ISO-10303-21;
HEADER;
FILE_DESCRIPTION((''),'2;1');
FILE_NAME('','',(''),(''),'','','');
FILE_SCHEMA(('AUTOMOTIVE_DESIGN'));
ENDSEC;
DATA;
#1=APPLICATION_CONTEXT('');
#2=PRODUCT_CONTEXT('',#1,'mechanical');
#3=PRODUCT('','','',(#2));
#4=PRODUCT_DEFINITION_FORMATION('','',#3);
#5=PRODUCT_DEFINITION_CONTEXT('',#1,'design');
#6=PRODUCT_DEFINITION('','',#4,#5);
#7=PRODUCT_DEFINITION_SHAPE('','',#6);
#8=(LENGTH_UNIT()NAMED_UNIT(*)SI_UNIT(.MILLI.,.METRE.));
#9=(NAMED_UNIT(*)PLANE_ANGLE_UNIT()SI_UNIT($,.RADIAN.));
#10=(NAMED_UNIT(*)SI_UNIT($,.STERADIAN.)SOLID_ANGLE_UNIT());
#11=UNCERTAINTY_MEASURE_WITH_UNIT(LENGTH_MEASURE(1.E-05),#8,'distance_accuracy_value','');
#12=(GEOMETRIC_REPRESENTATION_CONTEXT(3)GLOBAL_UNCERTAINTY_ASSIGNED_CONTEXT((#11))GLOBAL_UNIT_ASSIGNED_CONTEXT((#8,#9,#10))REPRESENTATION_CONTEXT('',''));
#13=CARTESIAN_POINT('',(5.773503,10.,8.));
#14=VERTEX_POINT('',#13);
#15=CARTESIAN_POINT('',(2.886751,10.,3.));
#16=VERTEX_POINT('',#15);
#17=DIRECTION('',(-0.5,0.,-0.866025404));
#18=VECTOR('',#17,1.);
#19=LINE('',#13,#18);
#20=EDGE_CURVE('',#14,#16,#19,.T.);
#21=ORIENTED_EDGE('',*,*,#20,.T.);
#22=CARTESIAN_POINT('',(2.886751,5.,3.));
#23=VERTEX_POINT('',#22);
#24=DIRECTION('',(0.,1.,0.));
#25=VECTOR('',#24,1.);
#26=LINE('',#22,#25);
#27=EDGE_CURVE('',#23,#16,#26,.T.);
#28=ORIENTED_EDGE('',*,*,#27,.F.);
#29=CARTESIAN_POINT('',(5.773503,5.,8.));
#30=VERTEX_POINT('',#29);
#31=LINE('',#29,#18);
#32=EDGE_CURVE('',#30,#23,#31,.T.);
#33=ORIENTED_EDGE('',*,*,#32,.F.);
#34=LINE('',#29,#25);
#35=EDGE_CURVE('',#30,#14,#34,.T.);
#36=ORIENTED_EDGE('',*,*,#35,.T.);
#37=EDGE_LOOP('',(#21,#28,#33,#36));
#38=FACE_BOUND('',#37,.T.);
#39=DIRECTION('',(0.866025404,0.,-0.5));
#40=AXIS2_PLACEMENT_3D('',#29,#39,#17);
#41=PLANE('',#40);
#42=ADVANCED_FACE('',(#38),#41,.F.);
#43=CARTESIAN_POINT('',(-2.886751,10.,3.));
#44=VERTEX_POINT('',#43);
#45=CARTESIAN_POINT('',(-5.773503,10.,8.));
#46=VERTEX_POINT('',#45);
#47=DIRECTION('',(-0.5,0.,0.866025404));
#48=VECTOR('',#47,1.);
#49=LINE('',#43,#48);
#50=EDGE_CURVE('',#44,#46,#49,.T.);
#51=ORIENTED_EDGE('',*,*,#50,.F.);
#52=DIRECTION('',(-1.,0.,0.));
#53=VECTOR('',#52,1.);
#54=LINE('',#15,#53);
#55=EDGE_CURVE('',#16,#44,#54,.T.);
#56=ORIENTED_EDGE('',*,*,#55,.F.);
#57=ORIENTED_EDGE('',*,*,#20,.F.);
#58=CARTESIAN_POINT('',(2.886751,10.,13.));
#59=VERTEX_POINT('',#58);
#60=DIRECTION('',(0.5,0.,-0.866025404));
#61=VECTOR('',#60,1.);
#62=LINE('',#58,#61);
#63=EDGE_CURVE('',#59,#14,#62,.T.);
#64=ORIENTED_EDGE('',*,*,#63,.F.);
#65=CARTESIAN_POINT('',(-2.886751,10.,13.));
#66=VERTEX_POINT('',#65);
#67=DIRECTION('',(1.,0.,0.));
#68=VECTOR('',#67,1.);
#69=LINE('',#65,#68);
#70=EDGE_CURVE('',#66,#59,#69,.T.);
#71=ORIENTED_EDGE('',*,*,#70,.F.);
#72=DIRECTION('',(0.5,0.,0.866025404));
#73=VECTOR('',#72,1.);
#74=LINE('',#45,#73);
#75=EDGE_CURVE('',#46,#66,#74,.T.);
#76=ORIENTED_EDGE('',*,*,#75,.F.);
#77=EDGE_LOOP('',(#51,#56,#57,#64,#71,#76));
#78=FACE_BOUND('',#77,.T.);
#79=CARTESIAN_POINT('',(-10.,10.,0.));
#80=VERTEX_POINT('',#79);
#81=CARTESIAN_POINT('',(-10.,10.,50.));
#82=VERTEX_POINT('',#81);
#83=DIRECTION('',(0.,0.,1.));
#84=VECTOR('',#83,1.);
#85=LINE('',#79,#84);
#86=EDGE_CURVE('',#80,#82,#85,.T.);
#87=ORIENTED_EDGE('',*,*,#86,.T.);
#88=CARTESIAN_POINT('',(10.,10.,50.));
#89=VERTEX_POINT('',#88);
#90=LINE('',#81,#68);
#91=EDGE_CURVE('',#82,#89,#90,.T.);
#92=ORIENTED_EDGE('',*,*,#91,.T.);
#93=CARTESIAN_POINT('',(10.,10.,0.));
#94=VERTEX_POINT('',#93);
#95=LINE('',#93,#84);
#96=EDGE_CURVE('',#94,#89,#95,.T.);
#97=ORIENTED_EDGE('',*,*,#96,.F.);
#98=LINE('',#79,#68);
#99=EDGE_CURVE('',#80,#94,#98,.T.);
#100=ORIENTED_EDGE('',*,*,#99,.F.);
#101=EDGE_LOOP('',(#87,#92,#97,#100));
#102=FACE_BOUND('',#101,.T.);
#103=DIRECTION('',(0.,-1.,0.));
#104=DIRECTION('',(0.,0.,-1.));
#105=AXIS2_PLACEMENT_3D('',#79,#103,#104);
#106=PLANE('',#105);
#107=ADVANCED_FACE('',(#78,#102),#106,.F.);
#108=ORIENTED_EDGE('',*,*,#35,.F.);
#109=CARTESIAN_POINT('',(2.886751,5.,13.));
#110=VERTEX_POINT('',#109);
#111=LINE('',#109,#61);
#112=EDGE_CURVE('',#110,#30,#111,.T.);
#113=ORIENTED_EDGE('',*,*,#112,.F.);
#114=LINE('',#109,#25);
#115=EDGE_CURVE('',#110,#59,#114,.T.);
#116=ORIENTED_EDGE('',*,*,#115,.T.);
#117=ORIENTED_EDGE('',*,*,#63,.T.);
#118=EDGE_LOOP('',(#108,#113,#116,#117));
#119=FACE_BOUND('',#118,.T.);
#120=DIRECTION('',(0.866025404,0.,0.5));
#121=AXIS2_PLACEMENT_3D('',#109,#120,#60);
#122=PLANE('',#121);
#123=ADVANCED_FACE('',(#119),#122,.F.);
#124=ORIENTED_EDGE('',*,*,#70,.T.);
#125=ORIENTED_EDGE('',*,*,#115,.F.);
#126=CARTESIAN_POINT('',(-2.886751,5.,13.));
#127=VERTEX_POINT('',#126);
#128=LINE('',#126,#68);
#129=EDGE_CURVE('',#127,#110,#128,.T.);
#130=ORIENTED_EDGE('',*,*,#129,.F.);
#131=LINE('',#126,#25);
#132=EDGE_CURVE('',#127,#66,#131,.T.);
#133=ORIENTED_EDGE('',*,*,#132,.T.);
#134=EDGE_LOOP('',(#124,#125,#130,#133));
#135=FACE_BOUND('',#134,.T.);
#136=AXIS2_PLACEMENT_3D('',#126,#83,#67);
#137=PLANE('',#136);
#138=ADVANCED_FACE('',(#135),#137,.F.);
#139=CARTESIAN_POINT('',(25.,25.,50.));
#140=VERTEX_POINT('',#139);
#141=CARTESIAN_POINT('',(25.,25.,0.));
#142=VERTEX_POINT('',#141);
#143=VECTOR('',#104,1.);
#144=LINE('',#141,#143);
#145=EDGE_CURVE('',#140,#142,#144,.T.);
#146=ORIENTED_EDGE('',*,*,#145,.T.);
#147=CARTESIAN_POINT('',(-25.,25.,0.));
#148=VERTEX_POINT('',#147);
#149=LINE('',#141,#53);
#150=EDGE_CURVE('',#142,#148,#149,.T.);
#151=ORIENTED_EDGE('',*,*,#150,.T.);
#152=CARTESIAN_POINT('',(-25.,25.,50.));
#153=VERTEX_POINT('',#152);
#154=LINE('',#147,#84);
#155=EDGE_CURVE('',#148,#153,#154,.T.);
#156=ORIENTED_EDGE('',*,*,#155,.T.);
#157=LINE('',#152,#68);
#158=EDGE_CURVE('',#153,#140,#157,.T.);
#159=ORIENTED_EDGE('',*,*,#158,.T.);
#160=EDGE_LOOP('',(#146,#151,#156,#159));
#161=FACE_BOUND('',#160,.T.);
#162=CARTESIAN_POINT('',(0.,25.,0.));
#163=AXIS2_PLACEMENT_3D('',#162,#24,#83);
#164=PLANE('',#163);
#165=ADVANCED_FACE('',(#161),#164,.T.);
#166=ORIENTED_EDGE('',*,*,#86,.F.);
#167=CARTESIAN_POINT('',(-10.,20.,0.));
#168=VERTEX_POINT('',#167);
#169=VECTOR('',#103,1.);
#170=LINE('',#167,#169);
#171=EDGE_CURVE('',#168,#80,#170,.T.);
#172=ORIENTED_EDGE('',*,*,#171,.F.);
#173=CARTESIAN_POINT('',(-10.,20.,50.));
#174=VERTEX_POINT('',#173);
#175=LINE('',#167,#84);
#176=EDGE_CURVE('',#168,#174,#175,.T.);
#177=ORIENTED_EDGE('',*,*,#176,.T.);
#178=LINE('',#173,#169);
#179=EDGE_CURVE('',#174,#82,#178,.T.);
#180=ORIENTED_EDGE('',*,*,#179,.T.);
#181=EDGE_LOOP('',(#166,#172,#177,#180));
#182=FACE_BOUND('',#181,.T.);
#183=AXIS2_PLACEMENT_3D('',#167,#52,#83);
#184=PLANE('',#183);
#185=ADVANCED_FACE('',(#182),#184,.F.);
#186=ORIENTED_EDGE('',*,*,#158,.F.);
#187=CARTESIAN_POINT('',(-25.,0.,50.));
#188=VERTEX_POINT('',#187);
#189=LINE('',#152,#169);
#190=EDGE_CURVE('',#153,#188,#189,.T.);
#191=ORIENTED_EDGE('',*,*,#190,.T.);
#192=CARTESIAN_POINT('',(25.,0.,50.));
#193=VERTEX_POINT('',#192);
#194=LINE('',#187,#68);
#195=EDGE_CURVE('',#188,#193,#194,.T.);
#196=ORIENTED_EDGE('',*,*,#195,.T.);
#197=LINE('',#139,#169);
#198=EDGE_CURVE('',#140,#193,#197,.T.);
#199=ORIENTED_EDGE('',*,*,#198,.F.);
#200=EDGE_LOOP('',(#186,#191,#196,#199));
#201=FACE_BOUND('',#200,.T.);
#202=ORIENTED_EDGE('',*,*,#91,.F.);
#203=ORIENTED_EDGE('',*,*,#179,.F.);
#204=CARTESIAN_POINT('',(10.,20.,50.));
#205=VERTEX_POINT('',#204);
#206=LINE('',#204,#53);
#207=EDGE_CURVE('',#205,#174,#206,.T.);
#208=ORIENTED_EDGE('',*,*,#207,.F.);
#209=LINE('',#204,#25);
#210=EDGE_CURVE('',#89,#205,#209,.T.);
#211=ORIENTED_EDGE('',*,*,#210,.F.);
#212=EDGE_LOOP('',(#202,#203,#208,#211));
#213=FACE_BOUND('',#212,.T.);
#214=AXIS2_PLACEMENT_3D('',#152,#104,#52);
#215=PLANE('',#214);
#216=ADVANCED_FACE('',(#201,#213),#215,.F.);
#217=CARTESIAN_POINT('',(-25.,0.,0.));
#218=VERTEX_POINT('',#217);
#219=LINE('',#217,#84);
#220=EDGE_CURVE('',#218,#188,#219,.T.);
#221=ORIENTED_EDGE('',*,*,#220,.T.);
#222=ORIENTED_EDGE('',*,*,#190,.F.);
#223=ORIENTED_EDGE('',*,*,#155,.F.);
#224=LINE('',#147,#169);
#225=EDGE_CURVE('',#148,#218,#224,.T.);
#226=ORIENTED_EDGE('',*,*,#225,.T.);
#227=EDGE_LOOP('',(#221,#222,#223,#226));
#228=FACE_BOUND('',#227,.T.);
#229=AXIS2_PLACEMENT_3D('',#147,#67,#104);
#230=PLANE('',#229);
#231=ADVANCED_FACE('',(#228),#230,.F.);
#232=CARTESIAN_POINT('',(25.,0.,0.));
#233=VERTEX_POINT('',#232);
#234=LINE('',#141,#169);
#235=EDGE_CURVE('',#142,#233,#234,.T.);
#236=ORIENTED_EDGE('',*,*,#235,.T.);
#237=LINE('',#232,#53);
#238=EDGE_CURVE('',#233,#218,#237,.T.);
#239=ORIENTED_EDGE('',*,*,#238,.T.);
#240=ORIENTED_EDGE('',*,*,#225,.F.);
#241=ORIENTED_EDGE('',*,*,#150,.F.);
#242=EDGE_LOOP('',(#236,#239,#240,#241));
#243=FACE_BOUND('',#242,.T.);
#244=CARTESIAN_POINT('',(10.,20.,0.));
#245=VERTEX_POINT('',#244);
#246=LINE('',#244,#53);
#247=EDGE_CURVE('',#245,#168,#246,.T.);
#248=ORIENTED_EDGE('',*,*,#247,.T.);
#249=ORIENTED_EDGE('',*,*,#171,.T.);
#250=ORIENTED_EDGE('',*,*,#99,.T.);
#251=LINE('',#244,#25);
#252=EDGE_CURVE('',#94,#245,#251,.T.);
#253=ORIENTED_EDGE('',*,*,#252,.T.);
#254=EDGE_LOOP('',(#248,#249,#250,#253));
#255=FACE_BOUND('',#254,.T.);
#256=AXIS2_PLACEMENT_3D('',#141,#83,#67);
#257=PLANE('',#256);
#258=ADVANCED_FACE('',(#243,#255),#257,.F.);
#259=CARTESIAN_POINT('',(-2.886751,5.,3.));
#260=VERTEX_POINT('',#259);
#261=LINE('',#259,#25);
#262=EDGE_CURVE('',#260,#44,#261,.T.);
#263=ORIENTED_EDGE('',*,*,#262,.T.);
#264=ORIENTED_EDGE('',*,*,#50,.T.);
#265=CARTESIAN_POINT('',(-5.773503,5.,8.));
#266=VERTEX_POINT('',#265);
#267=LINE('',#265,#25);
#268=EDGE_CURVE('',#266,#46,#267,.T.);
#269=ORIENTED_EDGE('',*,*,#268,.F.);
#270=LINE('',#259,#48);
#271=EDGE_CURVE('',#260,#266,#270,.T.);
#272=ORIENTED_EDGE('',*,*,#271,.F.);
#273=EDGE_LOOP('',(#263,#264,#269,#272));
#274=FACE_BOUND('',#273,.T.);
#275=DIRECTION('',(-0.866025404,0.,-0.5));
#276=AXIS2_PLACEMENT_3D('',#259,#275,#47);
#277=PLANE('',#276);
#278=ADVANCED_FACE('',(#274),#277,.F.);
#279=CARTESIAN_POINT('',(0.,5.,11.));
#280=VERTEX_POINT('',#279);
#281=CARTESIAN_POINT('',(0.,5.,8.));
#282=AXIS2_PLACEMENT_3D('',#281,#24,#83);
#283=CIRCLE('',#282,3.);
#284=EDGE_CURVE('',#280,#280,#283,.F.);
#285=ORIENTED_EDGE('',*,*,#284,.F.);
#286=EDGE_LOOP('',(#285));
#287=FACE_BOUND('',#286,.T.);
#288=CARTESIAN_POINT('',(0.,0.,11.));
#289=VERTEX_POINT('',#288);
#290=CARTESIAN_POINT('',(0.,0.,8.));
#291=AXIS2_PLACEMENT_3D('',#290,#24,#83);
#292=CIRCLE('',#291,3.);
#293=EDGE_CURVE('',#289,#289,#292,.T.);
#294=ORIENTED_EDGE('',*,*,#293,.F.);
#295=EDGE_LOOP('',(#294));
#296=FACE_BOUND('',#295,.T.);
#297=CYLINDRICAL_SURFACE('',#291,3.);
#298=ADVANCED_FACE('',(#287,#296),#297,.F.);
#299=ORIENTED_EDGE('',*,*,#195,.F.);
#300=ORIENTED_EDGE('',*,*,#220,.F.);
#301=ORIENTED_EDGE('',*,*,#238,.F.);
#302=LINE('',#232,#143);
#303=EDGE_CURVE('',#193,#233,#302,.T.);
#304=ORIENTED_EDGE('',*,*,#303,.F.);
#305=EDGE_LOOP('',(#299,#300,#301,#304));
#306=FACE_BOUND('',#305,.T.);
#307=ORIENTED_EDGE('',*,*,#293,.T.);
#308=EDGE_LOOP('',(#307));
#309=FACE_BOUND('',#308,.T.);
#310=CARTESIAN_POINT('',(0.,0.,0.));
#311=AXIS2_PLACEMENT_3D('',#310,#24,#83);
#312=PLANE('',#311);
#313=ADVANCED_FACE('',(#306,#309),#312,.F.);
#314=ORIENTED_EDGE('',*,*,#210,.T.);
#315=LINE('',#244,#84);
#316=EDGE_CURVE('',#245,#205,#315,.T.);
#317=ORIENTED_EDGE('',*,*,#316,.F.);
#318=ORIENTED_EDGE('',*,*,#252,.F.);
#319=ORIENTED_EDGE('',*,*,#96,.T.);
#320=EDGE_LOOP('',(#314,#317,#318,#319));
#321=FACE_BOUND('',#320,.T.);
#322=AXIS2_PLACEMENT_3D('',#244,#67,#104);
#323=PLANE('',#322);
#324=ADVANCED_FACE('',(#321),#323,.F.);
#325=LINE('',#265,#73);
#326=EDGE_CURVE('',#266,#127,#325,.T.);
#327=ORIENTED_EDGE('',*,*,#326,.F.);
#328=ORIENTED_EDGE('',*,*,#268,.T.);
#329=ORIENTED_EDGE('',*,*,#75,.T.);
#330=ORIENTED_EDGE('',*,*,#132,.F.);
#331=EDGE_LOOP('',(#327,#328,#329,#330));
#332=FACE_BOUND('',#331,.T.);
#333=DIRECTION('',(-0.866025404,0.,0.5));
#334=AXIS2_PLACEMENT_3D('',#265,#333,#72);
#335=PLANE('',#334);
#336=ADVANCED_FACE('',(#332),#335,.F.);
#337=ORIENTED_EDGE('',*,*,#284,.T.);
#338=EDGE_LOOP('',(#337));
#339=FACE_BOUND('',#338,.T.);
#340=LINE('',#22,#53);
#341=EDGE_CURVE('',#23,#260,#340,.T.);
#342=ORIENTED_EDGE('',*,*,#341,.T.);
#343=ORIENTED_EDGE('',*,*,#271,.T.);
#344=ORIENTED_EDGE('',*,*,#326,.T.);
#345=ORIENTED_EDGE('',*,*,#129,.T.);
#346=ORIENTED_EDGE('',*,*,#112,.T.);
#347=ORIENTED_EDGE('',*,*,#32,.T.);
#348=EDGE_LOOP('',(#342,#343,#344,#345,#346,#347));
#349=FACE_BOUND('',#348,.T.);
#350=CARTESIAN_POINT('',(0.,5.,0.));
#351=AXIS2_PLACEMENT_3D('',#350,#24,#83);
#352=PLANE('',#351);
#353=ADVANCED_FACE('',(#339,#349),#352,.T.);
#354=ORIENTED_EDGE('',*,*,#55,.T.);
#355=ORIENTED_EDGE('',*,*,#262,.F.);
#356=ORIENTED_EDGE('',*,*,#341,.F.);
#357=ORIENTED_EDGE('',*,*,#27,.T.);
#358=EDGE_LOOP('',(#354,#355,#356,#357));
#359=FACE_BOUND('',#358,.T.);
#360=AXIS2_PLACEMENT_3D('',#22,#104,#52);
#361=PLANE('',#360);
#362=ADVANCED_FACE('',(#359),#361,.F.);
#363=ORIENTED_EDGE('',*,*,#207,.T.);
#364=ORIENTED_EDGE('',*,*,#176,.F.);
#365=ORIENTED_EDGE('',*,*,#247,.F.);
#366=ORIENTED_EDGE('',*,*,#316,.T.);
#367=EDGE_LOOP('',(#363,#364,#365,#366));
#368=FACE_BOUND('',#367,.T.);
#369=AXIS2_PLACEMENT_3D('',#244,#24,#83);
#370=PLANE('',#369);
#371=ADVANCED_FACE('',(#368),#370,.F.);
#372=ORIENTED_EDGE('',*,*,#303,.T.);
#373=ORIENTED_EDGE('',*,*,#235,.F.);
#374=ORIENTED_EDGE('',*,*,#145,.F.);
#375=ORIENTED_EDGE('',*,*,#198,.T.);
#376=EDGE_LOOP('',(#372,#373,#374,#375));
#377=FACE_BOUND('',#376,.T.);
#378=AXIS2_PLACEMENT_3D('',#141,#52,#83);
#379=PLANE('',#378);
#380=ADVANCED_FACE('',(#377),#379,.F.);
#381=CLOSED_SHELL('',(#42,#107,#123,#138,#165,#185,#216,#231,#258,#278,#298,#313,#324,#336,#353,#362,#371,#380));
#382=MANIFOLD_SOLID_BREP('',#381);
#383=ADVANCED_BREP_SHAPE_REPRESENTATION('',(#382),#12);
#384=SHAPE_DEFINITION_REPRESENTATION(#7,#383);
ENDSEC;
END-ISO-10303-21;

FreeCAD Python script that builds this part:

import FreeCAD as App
import Part
import Sketcher
from FreeCAD import Vector
Q = App.Units.Quantity


def add_polygon(sketch, points):
    """Adds a closed chain of lines whose ends are joined by coincident constraints."""
    first, n = sketch.GeometryCount, len(points)
    for a, b in zip(points, points[1:] + points[:1]):
        sketch.addGeometry(Part.LineSegment(App.Vector(*a, 0), App.Vector(*b, 0)), False)
    for i in range(n):
        sketch.addConstraint(Sketcher.Constraint("Coincident", first + i, 2, first + (i + 1) % n, 1))

doc = App.newDocument("Part")
params = doc.addObject("Spreadsheet::Sheet", "Params")
for row, (alias, value) in enumerate([
    ("sketch1_width", "50 mm"),
    ("pad1_length", "25 mm"),
    ("sketch2_width", "20 mm"),
    ("sketch2_height", "10 mm"),
    ("pocket1_length", "50 mm"),
    ("sketch3_diameter", "6 mm"),
    ("pocket2_length", "10 mm"),
    ("pocket3_length", "5 mm"),
], start=1):
    params.set(f"A{row}", alias)
    params.set(f"B{row}", "=" + value)
    params.setAlias(f"B{row}", alias)

body = doc.addObject("PartDesign::Body", "Body")

sketch1 = doc.addObject("Sketcher::SketchObject", "Sketch")
body.addObject(sketch1)
sketch1.AttachmentSupport = (doc.XZ_Plane, [""])
sketch1.MapMode = "FlatFace"
add_polygon(sketch1, [(-25, 0), (-25, 50), (25, 50), (25, 0)])
sketch1.addConstraint([
    Sketcher.Constraint("Vertical", 0),
    Sketcher.Constraint("Horizontal", 1),
    Sketcher.Constraint("Vertical", 2),
    Sketcher.Constraint("Horizontal", 3),
    Sketcher.Constraint("Symmetric", 2, 2, 3, 2, -1, 1),
    Sketcher.Constraint("Equal", 3, 0),
    Sketcher.Constraint("DistanceX", 1, 1, 1, 2, 50.0),
])
sketch1.setExpression("Constraints[10]", "Params.sketch1_width")
pad1 = doc.addObject("PartDesign::Pad", "Pad")
body.addObject(pad1)
pad1.Profile = sketch1
pad1.setExpression("Length", "Params.pad1_length")
pad1.Reversed = True

sketch2 = doc.addObject("Sketcher::SketchObject", "Sketch001")
body.addObject(sketch2)
sketch2.AttachmentSupport = (doc.XY_Plane, [""])
sketch2.MapMode = "FlatFace"
sketch2.AttachmentOffset = App.Placement(Vector(0, 0, 50), App.Rotation())
add_polygon(sketch2, [(-10, 20), (-10, 10), (10, 10), (10, 20)])
sketch2.addConstraint([
    Sketcher.Constraint("Vertical", 0),
    Sketcher.Constraint("Horizontal", 1),
    Sketcher.Constraint("Vertical", 2),
    Sketcher.Constraint("Horizontal", 3),
    Sketcher.Constraint("DistanceX", 1, 1, 1, 2, 20.0),
    Sketcher.Constraint("DistanceY", 0, 2, 0, 1, 10.0),
    Sketcher.Constraint("DistanceX", 0, 2, -1, 1, 10.0),
    Sketcher.Constraint("DistanceY", -1, 1, 0, 2, 10.0),
])
sketch2.setExpression("Constraints[8]", "Params.sketch2_width")
sketch2.setExpression("Constraints[9]", "Params.sketch2_height")
pocket1 = doc.addObject("PartDesign::Pocket", "Pocket")
body.addObject(pocket1)
pocket1.Profile = sketch2
pocket1.setExpression("Length", "Params.pocket1_length")

sketch3 = doc.addObject("Sketcher::SketchObject", "Sketch002")
body.addObject(sketch3)
sketch3.AttachmentSupport = (doc.XZ_Plane, [""])
sketch3.MapMode = "FlatFace"
sketch3.AttachmentOffset = App.Placement(Vector(0, 0, -10), App.Rotation())
sketch3.addGeometry(Part.Circle(Vector(0, 8, 0), Vector(0, 0, 1), 3), False)
sketch3.addConstraint([
    Sketcher.Constraint("PointOnObject", 0, 3, -2),
    Sketcher.Constraint("Diameter", 0, 6.0),
    Sketcher.Constraint("DistanceY", -1, 1, 0, 3, 8.0),
])
sketch3.setExpression("Constraints[1]", "Params.sketch3_diameter")
pocket2 = doc.addObject("PartDesign::Pocket", "Pocket001")
body.addObject(pocket2)
pocket2.Profile = sketch3
pocket2.setExpression("Length", "Params.pocket2_length")
pocket2.Reversed = True

sketch4 = doc.addObject("Sketcher::SketchObject", "Sketch003")
body.addObject(sketch4)
sketch4.AttachmentSupport = (doc.XZ_Plane, [""])
sketch4.MapMode = "FlatFace"
sketch4.AttachmentOffset = App.Placement(Vector(0, 0, -10), App.Rotation())
add_polygon(sketch4, [(3, 3), (-3, 3), (-6, 8), (-3, 13), (3, 13), (6, 8)])
sketch4.addConstraint([
    Sketcher.Constraint("Horizontal", 0),
    Sketcher.Constraint("Horizontal", 3),
    Sketcher.Constraint("Symmetric", 1, 2, 4, 2, -2),
    Sketcher.Constraint("Parallel", 1, 4),
    Sketcher.Constraint("Parallel", 2, 5),
    Sketcher.Constraint("Vertical", 0, 2, 2, 2),
    Sketcher.Constraint("Vertical", 3, 2, 5, 2),
    Sketcher.Constraint("Angle", 1, Q("120 deg")),
    Sketcher.Constraint("DistanceY", -1, 1, 0, 2, 3.0),
    Sketcher.Constraint("DistanceY", -1, 1, 1, 2, 8.0),
    Sketcher.Constraint("DistanceX", 0, 2, 0, 1, 5.773503),
])
pocket3 = doc.addObject("PartDesign::Pocket", "Pocket002")
body.addObject(pocket3)
pocket3.Profile = sketch4
pocket3.setExpression("Length", "Params.pocket3_length")
pocket3.Reversed = True

doc.recompute()
